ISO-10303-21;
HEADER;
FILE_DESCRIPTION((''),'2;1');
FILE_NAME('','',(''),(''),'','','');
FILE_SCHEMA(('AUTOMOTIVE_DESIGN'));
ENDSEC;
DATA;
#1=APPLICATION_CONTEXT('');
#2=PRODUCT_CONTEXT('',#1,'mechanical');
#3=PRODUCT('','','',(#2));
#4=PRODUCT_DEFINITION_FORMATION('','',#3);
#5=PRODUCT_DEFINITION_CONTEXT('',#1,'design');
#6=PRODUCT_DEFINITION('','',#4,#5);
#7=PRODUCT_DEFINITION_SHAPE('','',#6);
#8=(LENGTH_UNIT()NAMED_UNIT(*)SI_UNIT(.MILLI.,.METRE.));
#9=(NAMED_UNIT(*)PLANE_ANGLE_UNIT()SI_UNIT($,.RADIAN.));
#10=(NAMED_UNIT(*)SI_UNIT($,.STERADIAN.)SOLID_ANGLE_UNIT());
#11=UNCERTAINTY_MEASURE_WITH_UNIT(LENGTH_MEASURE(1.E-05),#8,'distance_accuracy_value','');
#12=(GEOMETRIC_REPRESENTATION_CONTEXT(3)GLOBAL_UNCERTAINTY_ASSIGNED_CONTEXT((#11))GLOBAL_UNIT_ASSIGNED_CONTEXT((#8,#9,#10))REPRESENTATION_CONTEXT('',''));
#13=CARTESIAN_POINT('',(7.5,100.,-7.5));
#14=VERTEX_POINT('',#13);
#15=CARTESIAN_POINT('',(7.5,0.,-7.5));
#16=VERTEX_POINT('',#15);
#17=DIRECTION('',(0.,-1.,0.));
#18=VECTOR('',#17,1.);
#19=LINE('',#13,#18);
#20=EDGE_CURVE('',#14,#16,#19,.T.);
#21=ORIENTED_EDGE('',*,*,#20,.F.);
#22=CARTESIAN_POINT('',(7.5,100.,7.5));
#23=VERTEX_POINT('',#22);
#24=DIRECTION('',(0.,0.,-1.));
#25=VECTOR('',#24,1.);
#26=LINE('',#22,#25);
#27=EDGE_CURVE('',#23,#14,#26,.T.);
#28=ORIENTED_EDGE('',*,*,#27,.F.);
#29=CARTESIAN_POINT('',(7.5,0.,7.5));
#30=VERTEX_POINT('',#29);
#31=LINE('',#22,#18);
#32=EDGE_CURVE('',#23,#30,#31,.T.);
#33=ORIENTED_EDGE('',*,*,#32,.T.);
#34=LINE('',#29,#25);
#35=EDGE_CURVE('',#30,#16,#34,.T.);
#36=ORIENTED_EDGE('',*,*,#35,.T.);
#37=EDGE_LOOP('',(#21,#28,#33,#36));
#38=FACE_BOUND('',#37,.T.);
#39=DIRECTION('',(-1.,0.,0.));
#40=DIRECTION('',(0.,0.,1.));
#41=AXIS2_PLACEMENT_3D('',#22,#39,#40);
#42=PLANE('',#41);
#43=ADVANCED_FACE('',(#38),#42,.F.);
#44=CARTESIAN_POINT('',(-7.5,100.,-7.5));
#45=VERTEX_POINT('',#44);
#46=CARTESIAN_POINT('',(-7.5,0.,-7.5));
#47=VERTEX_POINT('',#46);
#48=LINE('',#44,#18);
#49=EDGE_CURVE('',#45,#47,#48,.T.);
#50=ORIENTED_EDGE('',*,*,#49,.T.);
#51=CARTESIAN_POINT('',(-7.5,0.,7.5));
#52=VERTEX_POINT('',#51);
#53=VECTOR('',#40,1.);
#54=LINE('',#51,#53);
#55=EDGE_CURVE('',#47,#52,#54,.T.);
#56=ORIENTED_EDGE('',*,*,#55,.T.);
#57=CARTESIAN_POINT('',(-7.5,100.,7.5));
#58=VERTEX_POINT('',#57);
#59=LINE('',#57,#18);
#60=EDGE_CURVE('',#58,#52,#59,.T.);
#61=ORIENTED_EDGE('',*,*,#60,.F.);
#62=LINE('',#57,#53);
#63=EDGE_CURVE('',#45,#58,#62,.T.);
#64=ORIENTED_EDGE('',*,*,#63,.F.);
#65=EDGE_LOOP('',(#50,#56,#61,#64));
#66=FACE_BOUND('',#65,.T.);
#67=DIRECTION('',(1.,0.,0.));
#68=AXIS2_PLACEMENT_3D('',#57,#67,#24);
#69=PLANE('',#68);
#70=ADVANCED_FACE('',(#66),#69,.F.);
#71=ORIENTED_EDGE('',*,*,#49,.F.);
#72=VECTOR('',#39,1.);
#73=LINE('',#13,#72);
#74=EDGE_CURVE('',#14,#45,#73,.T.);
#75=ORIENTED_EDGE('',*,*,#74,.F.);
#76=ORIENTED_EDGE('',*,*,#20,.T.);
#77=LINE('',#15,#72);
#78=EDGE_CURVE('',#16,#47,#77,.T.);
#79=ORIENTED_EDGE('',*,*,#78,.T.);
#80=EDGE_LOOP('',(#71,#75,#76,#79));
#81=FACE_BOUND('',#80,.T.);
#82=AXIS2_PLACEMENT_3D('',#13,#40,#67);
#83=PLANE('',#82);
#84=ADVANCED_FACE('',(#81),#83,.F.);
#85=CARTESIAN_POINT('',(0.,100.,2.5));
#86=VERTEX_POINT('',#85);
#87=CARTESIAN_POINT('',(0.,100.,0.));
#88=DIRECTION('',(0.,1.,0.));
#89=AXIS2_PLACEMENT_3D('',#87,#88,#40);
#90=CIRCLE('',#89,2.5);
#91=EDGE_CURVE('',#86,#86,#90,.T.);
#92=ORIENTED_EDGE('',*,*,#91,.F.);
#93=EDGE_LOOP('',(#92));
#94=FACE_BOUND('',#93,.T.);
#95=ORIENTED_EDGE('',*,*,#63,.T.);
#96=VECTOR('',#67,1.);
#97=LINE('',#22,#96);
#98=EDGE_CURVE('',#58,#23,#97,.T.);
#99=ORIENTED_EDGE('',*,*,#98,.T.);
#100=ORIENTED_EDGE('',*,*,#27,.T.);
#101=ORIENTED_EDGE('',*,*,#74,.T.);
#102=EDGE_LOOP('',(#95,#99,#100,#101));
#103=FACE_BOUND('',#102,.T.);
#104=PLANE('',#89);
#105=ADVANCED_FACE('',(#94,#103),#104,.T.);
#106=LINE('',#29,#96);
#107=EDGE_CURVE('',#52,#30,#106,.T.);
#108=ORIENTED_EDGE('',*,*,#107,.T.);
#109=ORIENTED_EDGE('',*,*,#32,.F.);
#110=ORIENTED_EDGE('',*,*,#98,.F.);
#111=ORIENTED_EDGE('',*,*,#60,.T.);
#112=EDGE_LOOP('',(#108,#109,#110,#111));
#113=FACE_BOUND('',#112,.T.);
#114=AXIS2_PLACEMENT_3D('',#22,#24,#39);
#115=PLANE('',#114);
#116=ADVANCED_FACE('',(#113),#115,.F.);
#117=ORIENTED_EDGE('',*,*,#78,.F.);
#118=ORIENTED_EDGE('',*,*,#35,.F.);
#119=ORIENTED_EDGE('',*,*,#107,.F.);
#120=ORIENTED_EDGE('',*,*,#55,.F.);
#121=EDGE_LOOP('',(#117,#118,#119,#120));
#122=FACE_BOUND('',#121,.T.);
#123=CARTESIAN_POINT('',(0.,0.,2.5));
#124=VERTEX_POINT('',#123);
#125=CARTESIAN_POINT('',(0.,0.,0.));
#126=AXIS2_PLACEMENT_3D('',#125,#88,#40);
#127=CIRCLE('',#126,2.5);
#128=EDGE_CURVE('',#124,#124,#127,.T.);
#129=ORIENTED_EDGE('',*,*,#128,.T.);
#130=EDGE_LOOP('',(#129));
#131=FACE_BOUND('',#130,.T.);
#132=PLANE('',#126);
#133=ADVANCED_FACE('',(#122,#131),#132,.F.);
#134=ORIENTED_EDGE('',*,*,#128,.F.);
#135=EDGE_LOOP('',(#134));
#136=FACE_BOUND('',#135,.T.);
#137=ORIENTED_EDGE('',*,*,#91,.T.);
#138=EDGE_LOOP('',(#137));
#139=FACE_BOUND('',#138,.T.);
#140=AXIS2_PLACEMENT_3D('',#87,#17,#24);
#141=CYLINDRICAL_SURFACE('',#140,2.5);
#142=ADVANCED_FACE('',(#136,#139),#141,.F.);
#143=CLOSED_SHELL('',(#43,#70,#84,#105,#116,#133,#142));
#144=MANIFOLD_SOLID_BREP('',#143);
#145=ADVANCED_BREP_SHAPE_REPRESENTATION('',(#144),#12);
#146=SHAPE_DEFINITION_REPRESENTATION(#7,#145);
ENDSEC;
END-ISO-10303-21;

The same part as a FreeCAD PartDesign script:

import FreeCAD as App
import Part
import Sketcher

V = App.Vector

doc = App.newDocument("Part")
body = doc.addObject("PartDesign::Body", "Body")

sketch1 = doc.addObject("Sketcher::SketchObject", "Sketch")
body.addObject(sketch1)
sketch1.AttachmentSupport = (doc.XZ_Plane, [""])
sketch1.MapMode = "FlatFace"
sketch1.addGeometry(Part.LineSegment(V(-7.5, -7.5, 0), V(-7.5, 7.5, 0)), False)
sketch1.addGeometry(Part.LineSegment(V(-7.5, 7.5, 0), V(7.5, 7.5, 0)), False)
sketch1.addGeometry(Part.LineSegment(V(7.5, 7.5, 0), V(7.5, -7.5, 0)), False)
sketch1.addGeometry(Part.LineSegment(V(7.5, -7.5, 0), V(-7.5, -7.5, 0)), False)
sketch1.addGeometry(Part.Circle(V(0, 0, 0), V(0, 0, 1), 2.5), False)
sketch1.addConstraint(Sketcher.Constraint("Coincident", 0, 2, 1, 1))
sketch1.addConstraint(Sketcher.Constraint("Coincident", 1, 2, 2, 1))
sketch1.addConstraint(Sketcher.Constraint("Coincident", 2, 2, 3, 1))
sketch1.addConstraint(Sketcher.Constraint("Coincident", 3, 2, 0, 1))
sketch1.addConstraint(Sketcher.Constraint("Vertical", 0))
sketch1.addConstraint(Sketcher.Constraint("Horizontal", 1))
sketch1.addConstraint(Sketcher.Constraint("Vertical", 2))
sketch1.addConstraint(Sketcher.Constraint("Horizontal", 3))
sketch1.addConstraint(Sketcher.Constraint("Coincident", 4, 3, -1, 1))
sketch1.addConstraint(Sketcher.Constraint("Symmetric", 0, 2, 2, 2, -1, 1))
sketch1.addConstraint(Sketcher.Constraint("Equal", 3, 0))
sketch1.addConstraint(Sketcher.Constraint("Diameter", 4, 5.0))
sketch1.addConstraint(Sketcher.Constraint("DistanceX", 1, 1, 1, 2, 15.0))
pad1 = doc.addObject("PartDesign::Pad", "Pad")
body.addObject(pad1)
pad1.Profile = sketch1
pad1.Length = 100
pad1.Reversed = True

doc.recompute()
